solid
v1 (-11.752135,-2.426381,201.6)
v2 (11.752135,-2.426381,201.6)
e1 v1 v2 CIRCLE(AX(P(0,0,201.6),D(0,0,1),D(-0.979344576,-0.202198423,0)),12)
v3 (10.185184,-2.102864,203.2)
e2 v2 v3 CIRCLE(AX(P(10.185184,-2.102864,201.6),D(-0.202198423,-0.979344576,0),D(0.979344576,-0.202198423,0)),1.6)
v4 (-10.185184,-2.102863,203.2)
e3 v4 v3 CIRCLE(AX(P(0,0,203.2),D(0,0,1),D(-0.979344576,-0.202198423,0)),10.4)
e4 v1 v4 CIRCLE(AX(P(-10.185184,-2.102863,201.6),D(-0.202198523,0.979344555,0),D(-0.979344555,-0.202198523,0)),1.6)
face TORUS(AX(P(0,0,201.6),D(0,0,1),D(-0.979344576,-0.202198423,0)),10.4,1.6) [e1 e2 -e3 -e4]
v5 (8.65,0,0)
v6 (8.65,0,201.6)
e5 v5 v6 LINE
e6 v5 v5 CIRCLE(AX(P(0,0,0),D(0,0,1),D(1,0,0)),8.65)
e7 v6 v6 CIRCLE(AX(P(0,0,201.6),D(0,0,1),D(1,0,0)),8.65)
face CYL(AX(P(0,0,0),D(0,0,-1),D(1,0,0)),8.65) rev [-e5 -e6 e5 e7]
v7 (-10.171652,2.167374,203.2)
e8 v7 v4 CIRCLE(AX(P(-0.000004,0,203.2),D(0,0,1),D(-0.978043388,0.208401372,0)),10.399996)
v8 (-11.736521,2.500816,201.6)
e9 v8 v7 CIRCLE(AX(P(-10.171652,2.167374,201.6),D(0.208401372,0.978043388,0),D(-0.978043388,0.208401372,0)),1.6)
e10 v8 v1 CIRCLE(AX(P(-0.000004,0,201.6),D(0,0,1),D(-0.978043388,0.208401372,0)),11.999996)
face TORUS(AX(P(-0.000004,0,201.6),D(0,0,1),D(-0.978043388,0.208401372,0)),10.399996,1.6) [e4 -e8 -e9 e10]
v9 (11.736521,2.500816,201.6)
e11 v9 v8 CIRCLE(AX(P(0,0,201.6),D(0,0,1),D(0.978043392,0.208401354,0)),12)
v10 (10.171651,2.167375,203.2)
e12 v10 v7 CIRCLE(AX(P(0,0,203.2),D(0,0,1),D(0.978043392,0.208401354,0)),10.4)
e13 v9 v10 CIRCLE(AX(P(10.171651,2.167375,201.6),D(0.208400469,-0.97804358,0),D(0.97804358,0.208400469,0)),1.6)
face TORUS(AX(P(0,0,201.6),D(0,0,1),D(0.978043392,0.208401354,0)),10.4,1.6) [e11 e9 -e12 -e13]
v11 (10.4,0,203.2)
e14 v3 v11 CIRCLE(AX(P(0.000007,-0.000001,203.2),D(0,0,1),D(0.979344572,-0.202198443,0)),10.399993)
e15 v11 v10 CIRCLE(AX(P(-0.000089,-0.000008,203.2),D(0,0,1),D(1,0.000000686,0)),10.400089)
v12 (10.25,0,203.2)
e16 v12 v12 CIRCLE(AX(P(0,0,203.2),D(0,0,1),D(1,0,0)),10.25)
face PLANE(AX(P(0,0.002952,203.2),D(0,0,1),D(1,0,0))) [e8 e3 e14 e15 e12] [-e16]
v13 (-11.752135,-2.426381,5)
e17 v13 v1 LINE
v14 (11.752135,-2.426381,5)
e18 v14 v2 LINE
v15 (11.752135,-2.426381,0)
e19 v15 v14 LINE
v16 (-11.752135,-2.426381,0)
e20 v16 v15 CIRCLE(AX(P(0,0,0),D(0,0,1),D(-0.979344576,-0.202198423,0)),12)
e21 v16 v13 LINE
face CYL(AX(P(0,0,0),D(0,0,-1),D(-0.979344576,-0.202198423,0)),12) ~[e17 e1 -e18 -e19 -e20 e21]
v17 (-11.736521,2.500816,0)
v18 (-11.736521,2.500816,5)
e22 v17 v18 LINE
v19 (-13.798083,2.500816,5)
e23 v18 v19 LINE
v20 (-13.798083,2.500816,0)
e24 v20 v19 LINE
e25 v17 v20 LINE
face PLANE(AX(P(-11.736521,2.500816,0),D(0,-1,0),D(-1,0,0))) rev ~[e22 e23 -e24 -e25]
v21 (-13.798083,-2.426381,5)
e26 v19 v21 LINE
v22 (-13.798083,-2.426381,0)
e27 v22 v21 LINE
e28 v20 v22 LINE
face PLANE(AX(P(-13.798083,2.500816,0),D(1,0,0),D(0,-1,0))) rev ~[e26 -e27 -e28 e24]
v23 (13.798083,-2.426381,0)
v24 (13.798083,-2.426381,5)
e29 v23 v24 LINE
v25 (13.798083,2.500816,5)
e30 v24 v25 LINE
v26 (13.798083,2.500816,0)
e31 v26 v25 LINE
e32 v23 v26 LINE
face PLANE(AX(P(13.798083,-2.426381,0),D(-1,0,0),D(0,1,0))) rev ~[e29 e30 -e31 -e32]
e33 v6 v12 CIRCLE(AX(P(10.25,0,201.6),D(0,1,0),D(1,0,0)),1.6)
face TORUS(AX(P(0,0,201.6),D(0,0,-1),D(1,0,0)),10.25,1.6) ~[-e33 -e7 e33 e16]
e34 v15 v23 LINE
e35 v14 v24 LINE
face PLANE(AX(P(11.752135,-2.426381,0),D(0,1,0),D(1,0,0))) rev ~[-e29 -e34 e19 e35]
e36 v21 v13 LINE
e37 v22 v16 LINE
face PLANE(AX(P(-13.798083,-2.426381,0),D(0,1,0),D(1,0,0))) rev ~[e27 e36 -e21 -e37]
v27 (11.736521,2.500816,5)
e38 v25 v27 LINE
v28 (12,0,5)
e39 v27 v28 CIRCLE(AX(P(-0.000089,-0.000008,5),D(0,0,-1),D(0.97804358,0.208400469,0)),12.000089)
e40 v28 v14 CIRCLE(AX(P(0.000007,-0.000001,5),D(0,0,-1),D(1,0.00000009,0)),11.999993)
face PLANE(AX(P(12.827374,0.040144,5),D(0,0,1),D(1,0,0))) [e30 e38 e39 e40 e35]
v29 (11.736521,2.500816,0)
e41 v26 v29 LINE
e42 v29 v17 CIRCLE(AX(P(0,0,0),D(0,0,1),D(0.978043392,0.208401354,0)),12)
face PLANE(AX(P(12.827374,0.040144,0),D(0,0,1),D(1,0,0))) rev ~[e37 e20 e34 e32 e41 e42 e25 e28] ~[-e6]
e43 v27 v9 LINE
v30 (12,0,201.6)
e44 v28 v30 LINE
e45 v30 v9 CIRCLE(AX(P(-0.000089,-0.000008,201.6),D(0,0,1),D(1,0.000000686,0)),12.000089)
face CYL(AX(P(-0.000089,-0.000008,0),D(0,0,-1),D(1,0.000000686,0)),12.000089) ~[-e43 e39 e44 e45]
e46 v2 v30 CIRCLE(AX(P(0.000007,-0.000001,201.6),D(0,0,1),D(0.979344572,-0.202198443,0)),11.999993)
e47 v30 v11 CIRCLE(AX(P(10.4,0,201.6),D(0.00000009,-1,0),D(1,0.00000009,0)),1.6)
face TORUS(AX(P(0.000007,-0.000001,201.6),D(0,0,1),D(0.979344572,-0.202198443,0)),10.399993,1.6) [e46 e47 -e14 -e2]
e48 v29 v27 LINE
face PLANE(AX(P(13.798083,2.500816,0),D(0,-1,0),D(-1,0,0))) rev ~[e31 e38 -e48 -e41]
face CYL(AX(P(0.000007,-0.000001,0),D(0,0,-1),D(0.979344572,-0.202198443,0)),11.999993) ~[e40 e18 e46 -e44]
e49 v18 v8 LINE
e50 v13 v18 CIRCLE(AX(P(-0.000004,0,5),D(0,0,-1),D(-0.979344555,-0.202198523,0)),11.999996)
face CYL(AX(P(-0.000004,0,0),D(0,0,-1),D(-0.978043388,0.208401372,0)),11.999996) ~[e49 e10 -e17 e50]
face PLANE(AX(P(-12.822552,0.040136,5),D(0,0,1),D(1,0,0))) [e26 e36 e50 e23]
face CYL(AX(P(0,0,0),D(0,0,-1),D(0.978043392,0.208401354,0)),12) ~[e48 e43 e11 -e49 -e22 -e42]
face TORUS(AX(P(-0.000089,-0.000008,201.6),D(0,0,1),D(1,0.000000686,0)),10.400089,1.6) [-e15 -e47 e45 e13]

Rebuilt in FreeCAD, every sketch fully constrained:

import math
import FreeCAD as App
import Part
import Sketcher


def edges_at(feature, points):
    """Names of the edges that pass closest to the given points."""
    edges = feature.Shape.Edges
    near = lambda p: min(range(len(edges)), key=lambda i: edges[i].distToShape(Part.Vertex(*p))[0])
    return sorted({f"Edge{near(p) + 1}" for p in points})

doc = App.newDocument("Part")
body = doc.addObject("PartDesign::Body", "Body")

# Sketch on XY plane
sketch1 = doc.addObject("Sketcher::SketchObject", "Sketch")
body.addObject(sketch1)
sketch1.AttachmentSupport = (doc.XY_Plane, [""])
sketch1.MapMode = "FlatFace"
sketch1.addGeometry(Part.ArcOfCircle(Part.Circle(App.Vector(0, 0, 0), App.Vector(0, 0, 1), 12), math.radians(12.028684), math.radians(167.971316)), False)
sketch1.addGeometry(Part.ArcOfCircle(Part.Circle(App.Vector(-0.000004, 0, 0), App.Vector(0, 0, 1), 11.999996), math.radians(167.971315), math.radians(191.665552)), False)
sketch1.addGeometry(Part.ArcOfCircle(Part.Circle(App.Vector(0, 0, 0), App.Vector(0, 0, 1), 12), math.radians(-168.334454), math.radians(-11.665546)), False)
sketch1.addGeometry(Part.ArcOfCircle(Part.Circle(App.Vector(0.000007, -0.000001, 0), App.Vector(0, 0, 1), 11.999993), math.radians(-11.665548), math.radians(0.000005)), False)
sketch1.addGeometry(Part.ArcOfCircle(Part.Circle(App.Vector(-0.000089, -0.000008, 0), App.Vector(0, 0, 1), 12.000089), math.radians(0.000039), math.radians(12.028632)), False)
sketch1.addGeometry(Part.Circle(App.Vector(0, 0, 0), App.Vector(0, 0, 1), 8.65), False)
sketch1.addConstraint(Sketcher.Constraint("Coincident", 0, 2, 1, 1))
sketch1.addConstraint(Sketcher.Constraint("Coincident", 1, 2, 2, 1))
sketch1.addConstraint(Sketcher.Constraint("Coincident", 2, 2, 3, 1))
sketch1.addConstraint(Sketcher.Constraint("Coincident", 3, 2, 4, 1))
sketch1.addConstraint(Sketcher.Constraint("Coincident", 4, 2, 0, 1))
sketch1.addConstraint(Sketcher.Constraint("Coincident", 0, 3, -1, 1))
sketch1.addConstraint(Sketcher.Constraint("Coincident", 1, 3, -1, 1))
sketch1.addConstraint(Sketcher.Constraint("Coincident", 2, 3, -1, 1))
sketch1.addConstraint(Sketcher.Constraint("Coincident", 3, 3, -1, 1))
sketch1.addConstraint(Sketcher.Constraint("Coincident", 5, 3, -1, 1))
sketch1.addConstraint(Sketcher.Constraint("PointOnObject", 3, 2, -1))
sketch1.addConstraint(Sketcher.Constraint("Radius", 0, 12.0))
sketch1.addConstraint(Sketcher.Constraint("Diameter", 5, 17.3))
sketch1.addConstraint(Sketcher.Constraint("Radius", 4, 12.000089))
sketch1.addConstraint(Sketcher.Constraint("DistanceX", 0, 2, -1, 1, 11.736521))
sketch1.addConstraint(Sketcher.Constraint("DistanceY", 1, 2, -1, 1, 2.426381))
sketch1.addConstraint(Sketcher.Constraint("DistanceY", 2, 2, -1, 1, 2.426381))
sketch1.addConstraint(Sketcher.Constraint("DistanceX", -1, 1, 4, 2, 11.736521))
pad1 = doc.addObject("PartDesign::Pad", "Pad")
body.addObject(pad1)
pad1.Profile = sketch1
pad1.Length = 203.2
doc.recompute()

fillet = doc.addObject("PartDesign::Fillet", "Fillet")
body.addObject(fillet)
fillet.Base = (pad1, edges_at(pad1, [(-12, 0.038, 203.2), (-8.65, 0, 203.2)]))
fillet.Radius = 1.6

# Sketch on XY plane
sketch2 = doc.addObject("Sketcher::SketchObject", "Sketch001")
body.addObject(sketch2)
sketch2.AttachmentSupport = (doc.XY_Plane, [""])
sketch2.MapMode = "FlatFace"
sketch2.addGeometry(Part.ArcOfCircle(Part.Circle(App.Vector(-0.000089, -0.000008, 0), App.Vector(0, 0, 1), 12.000089), math.radians(0.000039), math.radians(12.028632)), False)
sketch2.addGeometry(Part.ArcOfCircle(Part.Circle(App.Vector(0.000007, -0.000001, 0), App.Vector(0, 0, 1), 11.999993), math.radians(-11.665548), math.radians(0.000005)), False)
sketch2.addGeometry(Part.LineSegment(App.Vector(11.752135, -2.426381, 0), App.Vector(13.798083, -2.426381, 0)), False)
sketch2.addGeometry(Part.LineSegment(App.Vector(13.798083, -2.426381, 0), App.Vector(13.798083, 2.500816, 0)), False)
sketch2.addGeometry(Part.LineSegment(App.Vector(13.798083, 2.500816, 0), App.Vector(11.736521, 2.500816, 0)), False)
sketch2.addGeometry(Part.ArcOfCircle(Part.Circle(App.Vector(-0.000004, 0, 0), App.Vector(0, 0, 1), 11.999996), math.radians(167.971315), math.radians(191.665552)), False)
sketch2.addGeometry(Part.LineSegment(App.Vector(-11.736521, 2.500816, 0), App.Vector(-13.798083, 2.500816, 0)), False)
sketch2.addGeometry(Part.LineSegment(App.Vector(-13.798083, 2.500816, 0), App.Vector(-13.798083, -2.426381, 0)), False)
sketch2.addGeometry(Part.LineSegment(App.Vector(-13.798083, -2.426381, 0), App.Vector(-11.752135, -2.426381, 0)), False)
sketch2.addConstraint(Sketcher.Constraint("Coincident", 0, 1, 1, 2))
sketch2.addConstraint(Sketcher.Constraint("Coincident", 1, 1, 2, 1))
sketch2.addConstraint(Sketcher.Constraint("Coincident", 2, 2, 3, 1))
sketch2.addConstraint(Sketcher.Constraint("Coincident", 3, 2, 4, 1))
sketch2.addConstraint(Sketcher.Constraint("Coincident", 4, 2, 0, 2))
sketch2.addConstraint(Sketcher.Constraint("Coincident", 5, 1, 6, 1))
sketch2.addConstraint(Sketcher.Constraint("Coincident", 6, 2, 7, 1))
sketch2.addConstraint(Sketcher.Constraint("Coincident", 7, 2, 8, 1))
sketch2.addConstraint(Sketcher.Constraint("Coincident", 8, 2, 5, 2))
sketch2.addConstraint(Sketcher.Constraint("Horizontal", 2))
sketch2.addConstraint(Sketcher.Constraint("Vertical", 3))
sketch2.addConstraint(Sketcher.Constraint("Horizontal", 4))
sketch2.addConstraint(Sketcher.Constraint("Horizontal", 6))
sketch2.addConstraint(Sketcher.Constraint("Vertical", 7))
sketch2.addConstraint(Sketcher.Constraint("Horizontal", 8))
sketch2.addConstraint(Sketcher.Constraint("Coincident", 1, 3, -1, 1))
sketch2.addConstraint(Sketcher.Constraint("Coincident", 5, 3, -1, 1))
sketch2.addConstraint(Sketcher.Constraint("PointOnObject", 0, 1, -1))
sketch2.addConstraint(Sketcher.Constraint("DistanceX", -1, 1, 0, 1, 12.0))
sketch2.addConstraint(Sketcher.Constraint("Radius", 0, 12.000089))
sketch2.addConstraint(Sketcher.Constraint("Radius", 5, 11.999996))
sketch2.addConstraint(Sketcher.Constraint("DistanceX", 2, 1, 2, 2, 2.045948))
sketch2.addConstraint(Sketcher.Constraint("DistanceX", 4, 2, 4, 1, 2.061562))
sketch2.addConstraint(Sketcher.Constraint("DistanceX", 6, 2, 6, 1, 2.061562))
sketch2.addConstraint(Sketcher.Constraint("DistanceX", 8, 1, 8, 2, 2.045948))
sketch2.addConstraint(Sketcher.Constraint("DistanceY", 3, 1, 3, 2, 4.927197))
sketch2.addConstraint(Sketcher.Constraint("DistanceY", 7, 2, 7, 1, 4.927197))
sketch2.addConstraint(Sketcher.Constraint("DistanceY", 1, 1, -1, 1, 2.426381))
pad2 = doc.addObject("PartDesign::Pad", "Pad001")
body.addObject(pad2)
pad2.Profile = sketch2
pad2.Length = 5

doc.recompute()
